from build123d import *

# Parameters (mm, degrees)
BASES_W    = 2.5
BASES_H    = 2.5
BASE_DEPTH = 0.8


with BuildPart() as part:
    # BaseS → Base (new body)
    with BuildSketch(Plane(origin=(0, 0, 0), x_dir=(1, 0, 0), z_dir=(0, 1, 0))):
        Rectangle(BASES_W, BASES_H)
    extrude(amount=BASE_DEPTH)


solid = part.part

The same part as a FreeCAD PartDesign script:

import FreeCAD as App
import Part
import Sketcher
Q = App.Units.Quantity


def add_polygon(sketch, points):
    """Adds a closed chain of lines whose ends are joined by coincident constraints."""
    first, n = sketch.GeometryCount, len(points)
    for a, b in zip(points, points[1:] + points[:1]):
        sketch.addGeometry(Part.LineSegment(App.Vector(*a, 0), App.Vector(*b, 0)), False)
    for i in range(n):
        sketch.addConstraint(Sketcher.Constraint("Coincident", first + i, 2, first + (i + 1) % n, 1))

doc = App.newDocument("Part")
body = doc.addObject("PartDesign::Body", "Body")

# Sketch on XZ plane
sketch1 = body.newObject("Sketcher::SketchObject", "Sketch")
sketch1.AttachmentSupport = (doc.getObject("XZ_Plane"), [""])
sketch1.MapMode = "FlatFace"
add_polygon(sketch1, [(-1.2, -1.2), (-1.2, 1.2), (1.2, 1.2), (1.2, -1.2)])  # lines 0-3
sketch1.addConstraint(Sketcher.Constraint("Vertical", 0))
sketch1.addConstraint(Sketcher.Constraint("Horizontal", 1))
sketch1.addConstraint(Sketcher.Constraint("Vertical", 2))
sketch1.addConstraint(Sketcher.Constraint("Horizontal", 3))
sketch1.addConstraint(Sketcher.Constraint("Symmetric", 0, 2, 2, 2, -1, 1))
sketch1.addConstraint(Sketcher.Constraint("Equal", 3, 0))
sketch1.addConstraint(Sketcher.Constraint("DistanceX", 1, 1, 1, 2, Q("2.5 mm")))
pad1 = body.newObject("PartDesign::Pad", "Pad")
pad1.Profile = sketch1
pad1.Length = 0.8
pad1.Reversed = True

doc.recompute()
